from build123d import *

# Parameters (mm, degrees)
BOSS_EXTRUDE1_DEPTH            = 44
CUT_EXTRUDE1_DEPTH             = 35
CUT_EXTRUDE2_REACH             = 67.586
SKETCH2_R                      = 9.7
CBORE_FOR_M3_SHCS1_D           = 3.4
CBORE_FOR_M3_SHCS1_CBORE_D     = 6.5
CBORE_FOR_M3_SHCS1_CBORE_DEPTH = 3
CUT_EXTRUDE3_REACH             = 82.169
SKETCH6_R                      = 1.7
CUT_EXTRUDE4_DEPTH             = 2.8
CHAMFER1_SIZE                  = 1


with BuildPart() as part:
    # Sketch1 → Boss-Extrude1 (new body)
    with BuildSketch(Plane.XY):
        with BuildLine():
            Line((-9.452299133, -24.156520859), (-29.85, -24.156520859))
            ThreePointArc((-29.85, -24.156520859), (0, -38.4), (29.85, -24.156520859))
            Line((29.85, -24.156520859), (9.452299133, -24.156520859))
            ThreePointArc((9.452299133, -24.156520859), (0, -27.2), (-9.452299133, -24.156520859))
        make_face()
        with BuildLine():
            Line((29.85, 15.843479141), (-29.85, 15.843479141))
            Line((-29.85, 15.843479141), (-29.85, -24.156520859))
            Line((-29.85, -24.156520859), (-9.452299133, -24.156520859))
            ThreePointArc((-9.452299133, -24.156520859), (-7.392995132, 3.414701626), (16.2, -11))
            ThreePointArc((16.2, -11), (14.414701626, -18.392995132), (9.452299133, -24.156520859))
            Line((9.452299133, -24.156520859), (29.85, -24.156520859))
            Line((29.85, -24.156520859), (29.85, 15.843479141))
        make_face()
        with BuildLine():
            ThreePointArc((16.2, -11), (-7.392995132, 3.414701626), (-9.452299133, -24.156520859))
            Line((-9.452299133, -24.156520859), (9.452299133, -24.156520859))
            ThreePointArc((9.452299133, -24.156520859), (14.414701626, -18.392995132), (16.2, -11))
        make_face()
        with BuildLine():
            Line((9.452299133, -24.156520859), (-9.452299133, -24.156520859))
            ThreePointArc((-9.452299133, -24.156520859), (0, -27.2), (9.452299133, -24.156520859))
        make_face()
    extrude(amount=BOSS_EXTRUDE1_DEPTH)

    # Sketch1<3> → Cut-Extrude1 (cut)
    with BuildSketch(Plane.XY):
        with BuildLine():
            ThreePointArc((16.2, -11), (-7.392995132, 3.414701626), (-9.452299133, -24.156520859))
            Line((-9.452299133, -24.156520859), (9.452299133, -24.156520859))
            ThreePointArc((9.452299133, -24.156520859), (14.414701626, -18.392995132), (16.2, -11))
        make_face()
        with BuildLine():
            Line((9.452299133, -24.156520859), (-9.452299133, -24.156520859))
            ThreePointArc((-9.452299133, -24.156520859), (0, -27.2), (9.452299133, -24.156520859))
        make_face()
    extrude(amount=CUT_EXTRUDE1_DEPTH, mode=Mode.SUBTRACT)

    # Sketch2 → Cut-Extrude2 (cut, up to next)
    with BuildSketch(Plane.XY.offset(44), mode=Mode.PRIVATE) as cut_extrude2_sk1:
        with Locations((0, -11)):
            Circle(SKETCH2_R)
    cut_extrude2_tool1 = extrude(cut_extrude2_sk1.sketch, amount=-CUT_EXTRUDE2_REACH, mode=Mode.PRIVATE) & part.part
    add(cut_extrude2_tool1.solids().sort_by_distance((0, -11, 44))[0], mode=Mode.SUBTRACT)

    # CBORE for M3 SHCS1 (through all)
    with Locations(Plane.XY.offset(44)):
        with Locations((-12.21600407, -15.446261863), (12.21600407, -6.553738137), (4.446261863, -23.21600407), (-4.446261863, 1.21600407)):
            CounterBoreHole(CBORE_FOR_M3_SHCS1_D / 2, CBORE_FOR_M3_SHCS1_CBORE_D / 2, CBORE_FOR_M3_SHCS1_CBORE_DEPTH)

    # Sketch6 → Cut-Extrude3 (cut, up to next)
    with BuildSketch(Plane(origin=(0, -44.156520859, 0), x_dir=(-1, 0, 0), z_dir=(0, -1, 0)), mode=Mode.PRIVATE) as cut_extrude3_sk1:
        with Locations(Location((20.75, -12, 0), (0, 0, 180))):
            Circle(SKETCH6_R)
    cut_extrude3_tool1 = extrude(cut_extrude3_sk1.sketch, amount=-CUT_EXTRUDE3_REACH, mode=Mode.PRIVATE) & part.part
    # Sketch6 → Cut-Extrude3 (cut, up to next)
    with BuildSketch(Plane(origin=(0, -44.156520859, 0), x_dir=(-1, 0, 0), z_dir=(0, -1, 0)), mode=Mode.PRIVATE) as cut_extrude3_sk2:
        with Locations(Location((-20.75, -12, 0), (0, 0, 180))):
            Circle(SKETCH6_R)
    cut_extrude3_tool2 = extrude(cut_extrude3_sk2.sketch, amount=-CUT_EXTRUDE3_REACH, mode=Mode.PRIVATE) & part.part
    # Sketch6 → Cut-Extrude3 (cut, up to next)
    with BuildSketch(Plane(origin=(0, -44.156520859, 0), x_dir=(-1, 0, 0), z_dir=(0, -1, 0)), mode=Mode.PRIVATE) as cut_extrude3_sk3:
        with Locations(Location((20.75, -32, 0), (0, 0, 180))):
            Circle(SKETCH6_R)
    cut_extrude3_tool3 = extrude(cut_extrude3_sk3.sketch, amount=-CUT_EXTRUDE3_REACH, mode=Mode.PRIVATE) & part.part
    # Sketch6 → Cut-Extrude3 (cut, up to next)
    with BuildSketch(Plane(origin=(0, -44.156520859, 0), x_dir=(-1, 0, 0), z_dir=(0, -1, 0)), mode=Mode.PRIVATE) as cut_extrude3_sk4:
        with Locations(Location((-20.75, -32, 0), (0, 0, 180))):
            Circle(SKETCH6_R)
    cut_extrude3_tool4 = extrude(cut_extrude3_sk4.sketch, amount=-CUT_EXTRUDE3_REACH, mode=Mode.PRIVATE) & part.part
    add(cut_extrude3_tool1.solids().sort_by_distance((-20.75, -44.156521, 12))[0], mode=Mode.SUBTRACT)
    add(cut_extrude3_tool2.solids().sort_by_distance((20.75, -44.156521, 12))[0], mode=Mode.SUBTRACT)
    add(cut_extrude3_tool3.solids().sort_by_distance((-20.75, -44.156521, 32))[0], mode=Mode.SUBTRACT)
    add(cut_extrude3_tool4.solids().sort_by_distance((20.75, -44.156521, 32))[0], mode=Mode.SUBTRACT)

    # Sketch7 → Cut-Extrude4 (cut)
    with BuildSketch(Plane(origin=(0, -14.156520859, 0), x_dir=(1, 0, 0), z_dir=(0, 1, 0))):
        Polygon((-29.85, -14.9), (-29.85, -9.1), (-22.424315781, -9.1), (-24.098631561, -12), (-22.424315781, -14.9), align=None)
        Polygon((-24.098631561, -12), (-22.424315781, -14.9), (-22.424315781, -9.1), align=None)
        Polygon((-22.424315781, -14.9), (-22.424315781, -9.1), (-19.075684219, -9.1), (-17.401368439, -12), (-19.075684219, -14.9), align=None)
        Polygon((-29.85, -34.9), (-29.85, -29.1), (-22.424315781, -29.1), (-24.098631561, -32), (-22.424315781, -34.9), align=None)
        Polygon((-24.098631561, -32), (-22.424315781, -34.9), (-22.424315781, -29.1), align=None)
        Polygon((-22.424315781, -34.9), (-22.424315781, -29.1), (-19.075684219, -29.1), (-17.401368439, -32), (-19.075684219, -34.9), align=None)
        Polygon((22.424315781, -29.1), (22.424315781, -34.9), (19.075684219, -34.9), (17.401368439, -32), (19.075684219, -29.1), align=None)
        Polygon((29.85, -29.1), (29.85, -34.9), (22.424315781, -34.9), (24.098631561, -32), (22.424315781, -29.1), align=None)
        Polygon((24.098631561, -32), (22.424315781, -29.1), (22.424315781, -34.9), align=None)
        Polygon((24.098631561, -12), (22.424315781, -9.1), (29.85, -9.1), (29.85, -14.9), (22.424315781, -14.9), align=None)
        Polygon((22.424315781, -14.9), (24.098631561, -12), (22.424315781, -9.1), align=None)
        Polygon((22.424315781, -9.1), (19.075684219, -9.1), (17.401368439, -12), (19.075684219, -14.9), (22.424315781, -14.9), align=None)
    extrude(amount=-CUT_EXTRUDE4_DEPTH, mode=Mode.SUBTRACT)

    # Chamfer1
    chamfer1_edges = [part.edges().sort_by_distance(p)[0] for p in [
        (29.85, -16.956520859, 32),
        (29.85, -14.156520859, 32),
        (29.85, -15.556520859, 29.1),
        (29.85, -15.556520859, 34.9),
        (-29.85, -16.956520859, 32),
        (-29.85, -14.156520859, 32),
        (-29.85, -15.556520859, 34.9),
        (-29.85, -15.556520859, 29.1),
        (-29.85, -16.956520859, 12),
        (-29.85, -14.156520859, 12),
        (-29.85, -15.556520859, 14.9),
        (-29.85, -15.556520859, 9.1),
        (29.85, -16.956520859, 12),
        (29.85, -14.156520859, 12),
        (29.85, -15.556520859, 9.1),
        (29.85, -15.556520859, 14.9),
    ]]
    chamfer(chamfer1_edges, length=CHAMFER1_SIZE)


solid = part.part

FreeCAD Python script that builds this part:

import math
import FreeCAD as App
import Part
import Sketcher
Q = App.Units.Quantity


def edges_at(feature, points):
    """Names of the edges that pass closest to the given points."""
    edges = feature.Shape.Edges
    near = lambda p: min(range(len(edges)), key=lambda i: edges[i].distToShape(Part.Vertex(*p))[0])
    return sorted({f"Edge{near(p) + 1}" for p in points})


def add_polygon(sketch, points):
    """Adds a closed chain of lines whose ends are joined by coincident constraints."""
    first, n = sketch.GeometryCount, len(points)
    for a, b in zip(points, points[1:] + points[:1]):
        sketch.addGeometry(Part.LineSegment(App.Vector(*a, 0), App.Vector(*b, 0)), False)
    for i in range(n):
        sketch.addConstraint(Sketcher.Constraint("Coincident", first + i, 2, first + (i + 1) % n, 1))

doc = App.newDocument("Part")
body = doc.addObject("PartDesign::Body", "Body")

# Sketch on XY plane
sketch1 = body.newObject("Sketcher::SketchObject", "Sketch")
sketch1.AttachmentSupport = (doc.getObject("XY_Plane"), [""])
sketch1.MapMode = "FlatFace"
sketch1.addGeometry(Part.ArcOfCircle(Part.Circle(App.Vector(0, 0, 0), App.Vector(0, 0, 1), 38), math.radians(-141), math.radians(-39)), False)
sketch1.addGeometry(Part.LineSegment(App.Vector(30, -24, 0), App.Vector(30, 16, 0)), False)
sketch1.addGeometry(Part.LineSegment(App.Vector(30, 16, 0), App.Vector(-30, 16, 0)), False)
sketch1.addGeometry(Part.LineSegment(App.Vector(-30, 16, 0), App.Vector(-30, -24, 0)), False)
sketch1.addConstraint(Sketcher.Constraint("Coincident", 0, 2, 1, 1))
sketch1.addConstraint(Sketcher.Constraint("Coincident", 1, 2, 2, 1))
sketch1.addConstraint(Sketcher.Constraint("Coincident", 2, 2, 3, 1))
sketch1.addConstraint(Sketcher.Constraint("Coincident", 3, 2, 0, 1))
sketch1.addConstraint(Sketcher.Constraint("Vertical", 1))
sketch1.addConstraint(Sketcher.Constraint("Horizontal", 2))
sketch1.addConstraint(Sketcher.Constraint("Vertical", 3))
sketch1.addConstraint(Sketcher.Constraint("Coincident", 0, 3, -1, 1))
sketch1.addConstraint(Sketcher.Constraint("Horizontal", 0, 2, 3, 2))
sketch1.addConstraint(Sketcher.Constraint("Radius", 0, Q("38.4 mm")))
sketch1.addConstraint(Sketcher.Constraint("DistanceY", 1, 1, 1, 2, Q("40 mm")))
sketch1.addConstraint(Sketcher.Constraint("DistanceX", 2, 2, 2, 1, Q("59.7 mm")))
pad1 = body.newObject("PartDesign::Pad", "Pad")
pad1.Profile = sketch1
pad1.Length = 44

# Sketch on XY plane
sketch2 = body.newObject("Sketcher::SketchObject", "Sketch001")
sketch2.AttachmentSupport = (doc.getObject("XY_Plane"), [""])
sketch2.MapMode = "FlatFace"
sketch2.addGeometry(Part.ArcOfCircle(Part.Circle(App.Vector(0, -11, 0), App.Vector(0, 0, 1), 16), math.radians(0), math.radians(234)), False)
sketch2.addGeometry(Part.ArcOfCircle(Part.Circle(App.Vector(0, -11, 0), App.Vector(0, 0, 1), 16), math.radians(-126), math.radians(-54)), False)
sketch2.addGeometry(Part.ArcOfCircle(Part.Circle(App.Vector(0, -11, 0), App.Vector(0, 0, 1), 16), math.radians(-54), math.radians(0)), False)
sketch2.addConstraint(Sketcher.Constraint("Tangent", 0, 2, 1, 1))
sketch2.addConstraint(Sketcher.Constraint("Tangent", 1, 2, 2, 1))
sketch2.addConstraint(Sketcher.Constraint("Tangent", 2, 2, 0, 1))
sketch2.addConstraint(Sketcher.Constraint("Symmetric", 0, 2, 1, 2, -2))
sketch2.addConstraint(Sketcher.Constraint("Horizontal", 1, 3, 2, 2))
sketch2.addConstraint(Sketcher.Constraint("Radius", 0, Q("16.2 mm")))
sketch2.addConstraint(Sketcher.Constraint("DistanceY", 0, 3, -1, 1, Q("11 mm")))
sketch2.addConstraint(Sketcher.Constraint("DistanceX", 0, 2, -1, 1, Q("9.452299 mm")))
pocket1 = body.newObject("PartDesign::Pocket", "Pocket")
pocket1.Profile = sketch2
pocket1.Length = 35
pocket1.Reversed = True

# Sketch on XY plane
sketch3 = body.newObject("Sketcher::SketchObject", "Sketch002")
sketch3.AttachmentSupport = (doc.getObject("XY_Plane"), [""])
sketch3.MapMode = "FlatFace"
sketch3.AttachmentOffset = App.Placement(App.Vector(0, 0, 44), App.Rotation())
sketch3.addGeometry(Part.Circle(App.Vector(0, -11, 0), App.Vector(0, 0, 1), 10), False)
sketch3.addConstraint(Sketcher.Constraint("PointOnObject", 0, 3, -2))
sketch3.addConstraint(Sketcher.Constraint("Diameter", 0, Q("19.4 mm")))
sketch3.addConstraint(Sketcher.Constraint("DistanceY", 0, 3, -1, 1, Q("11 mm")))
pocket2 = body.newObject("PartDesign::Pocket", "Pocket001")
pocket2.Profile = sketch3
pocket2.Type = "UpToFirst"

# Sketch on XY plane
sketch4 = body.newObject("Sketcher::SketchObject", "Sketch003")
sketch4.AttachmentSupport = (doc.getObject("XY_Plane"), [""])
sketch4.MapMode = "FlatFace"
sketch4.AttachmentOffset = App.Placement(App.Vector(0, 0, 44), App.Rotation())
sketch4.addGeometry(Part.Circle(App.Vector(-12.2, -15.4, 0), App.Vector(0, 0, 1), 1.7), False)
sketch4.addGeometry(Part.Circle(App.Vector(12.2, -6.6, 0), App.Vector(0, 0, 1), 1.7), False)
sketch4.addGeometry(Part.Circle(App.Vector(4.4, -23.2, 0), App.Vector(0, 0, 1), 1.7), False)
sketch4.addGeometry(Part.Circle(App.Vector(-4.4, 1.2, 0), App.Vector(0, 0, 1), 1.7), False)
sketch4.addConstraint(Sketcher.Constraint("Equal", 0, 1))
sketch4.addConstraint(Sketcher.Constraint("Equal", 1, 2))
sketch4.addConstraint(Sketcher.Constraint("Equal", 2, 3))
sketch4.addConstraint(Sketcher.Constraint("Diameter", 0, Q("3.4 mm")))
sketch4.addConstraint(Sketcher.Constraint("DistanceY", 0, 3, -1, 1, Q("15.446262 mm")))
sketch4.addConstraint(Sketcher.Constraint("DistanceY", 1, 3, -1, 1, Q("6.553738 mm")))
sketch4.addConstraint(Sketcher.Constraint("DistanceX", -1, 1, 2, 3, Q("4.446262 mm")))
sketch4.addConstraint(Sketcher.Constraint("DistanceX", 3, 3, -1, 1, Q("4.446262 mm")))
sketch4.addConstraint(Sketcher.Constraint("DistanceX", 0, 3, 1, 3, Q("24.432008 mm")))
sketch4.addConstraint(Sketcher.Constraint("DistanceY", 2, 3, 3, 3, Q("24.432008 mm")))
sketch4.addConstraint(Sketcher.Constraint("DistanceX", 0, 3, -1, 1, Q("12.216004 mm")))
sketch4.addConstraint(Sketcher.Constraint("DistanceY", 2, 3, -1, 1, Q("23.216004 mm")))
doc.recompute()
hole = body.newObject("PartDesign::Hole", "Hole")
hole.Profile = sketch4
hole.ThreadType = "None"
hole.Diameter = 3.4
hole.DepthType = "ThroughAll"
hole.HoleCutType = "Counterbore"
hole.HoleCutDiameter = 6.5
hole.HoleCutDepth = 3

# Sketch on XZ plane
sketch5 = body.newObject("Sketcher::SketchObject", "Sketch004")
sketch5.AttachmentSupport = (doc.getObject("XZ_Plane"), [""])
sketch5.MapMode = "FlatFace"
sketch5.AttachmentOffset = App.Placement(App.Vector(0, 0, 44.156521), App.Rotation())
sketch5.addGeometry(Part.Circle(App.Vector(-20.8, 12, 0), App.Vector(0, 0, 1), 1.7), False)
sketch5.addConstraint(Sketcher.Constraint("Diameter", 0, Q("3.4 mm")))
sketch5.addConstraint(Sketcher.Constraint("DistanceY", -1, 1, 0, 3, Q("12 mm")))
sketch5.addConstraint(Sketcher.Constraint("DistanceX", 0, 3, -1, 1, Q("20.75 mm")))
pocket3 = body.newObject("PartDesign::Pocket", "Pocket002")
pocket3.Profile = sketch5
pocket3.Length = 60

# Sketch on XZ plane
sketch6 = body.newObject("Sketcher::SketchObject", "Sketch005")
sketch6.AttachmentSupport = (doc.getObject("XZ_Plane"), [""])
sketch6.MapMode = "FlatFace"
sketch6.AttachmentOffset = App.Placement(App.Vector(0, 0, 44.156521), App.Rotation())
sketch6.addGeometry(Part.Circle(App.Vector(20.8, 12, 0), App.Vector(0, 0, 1), 1.7), False)
sketch6.addConstraint(Sketcher.Constraint("Diameter", 0, Q("3.4 mm")))
sketch6.addConstraint(Sketcher.Constraint("DistanceY", -1, 1, 0, 3, Q("12 mm")))
sketch6.addConstraint(Sketcher.Constraint("DistanceX", -1, 1, 0, 3, Q("20.75 mm")))
pocket4 = body.newObject("PartDesign::Pocket", "Pocket003")
pocket4.Profile = sketch6
pocket4.Length = 60

# Sketch on XZ plane
sketch7 = body.newObject("Sketcher::SketchObject", "Sketch006")
sketch7.AttachmentSupport = (doc.getObject("XZ_Plane"), [""])
sketch7.MapMode = "FlatFace"
sketch7.AttachmentOffset = App.Placement(App.Vector(0, 0, 44.156521), App.Rotation())
sketch7.addGeometry(Part.Circle(App.Vector(-20.8, 32, 0), App.Vector(0, 0, 1), 1.7), False)
sketch7.addConstraint(Sketcher.Constraint("Diameter", 0, Q("3.4 mm")))
sketch7.addConstraint(Sketcher.Constraint("DistanceY", -1, 1, 0, 3, Q("32 mm")))
sketch7.addConstraint(Sketcher.Constraint("DistanceX", 0, 3, -1, 1, Q("20.75 mm")))
pocket5 = body.newObject("PartDesign::Pocket", "Pocket004")
pocket5.Profile = sketch7
pocket5.Length = 60

# Sketch on XZ plane
sketch8 = body.newObject("Sketcher::SketchObject", "Sketch007")
sketch8.AttachmentSupport = (doc.getObject("XZ_Plane"), [""])
sketch8.MapMode = "FlatFace"
sketch8.AttachmentOffset = App.Placement(App.Vector(0, 0, 44.156521), App.Rotation())
sketch8.addGeometry(Part.Circle(App.Vector(20.8, 32, 0), App.Vector(0, 0, 1), 1.7), False)
sketch8.addConstraint(Sketcher.Constraint("Diameter", 0, Q("3.4 mm")))
sketch8.addConstraint(Sketcher.Constraint("DistanceY", -1, 1, 0, 3, Q("32 mm")))
sketch8.addConstraint(Sketcher.Constraint("DistanceX", -1, 1, 0, 3, Q("20.75 mm")))
pocket6 = body.newObject("PartDesign::Pocket", "Pocket005")
pocket6.Profile = sketch8
pocket6.Length = 60

# Sketch on XZ plane
sketch9 = body.newObject("Sketcher::SketchObject", "Sketch008")
sketch9.AttachmentSupport = (doc.getObject("XZ_Plane"), [""])
sketch9.MapMode = "FlatFace"
sketch9.AttachmentOffset = App.Placement(App.Vector(0, 0, 14.156521), App.Rotation())
add_polygon(sketch9, [(-29.9, 9.1), (-29.9, 14.9), (-19.1, 14.9), (-17.4, 12), (-19.1, 9.1)])  # lines 0-4
add_polygon(sketch9, [(-29.9, 29.1), (-29.9, 34.9), (-19.1, 34.9), (-17.4, 32), (-19.1, 29.1)])  # lines 5-9
add_polygon(sketch9, [(19.1, 34.9), (29.9, 34.9), (29.9, 29.1), (19.1, 29.1), (17.4, 32)])  # lines 10-14
add_polygon(sketch9, [(29.9, 9.1), (19.1, 9.1), (17.4, 12), (19.1, 14.9), (29.9, 14.9)])  # lines 15-19
sketch9.addConstraint(Sketcher.Constraint("Vertical", 0))
sketch9.addConstraint(Sketcher.Constraint("Horizontal", 1))
sketch9.addConstraint(Sketcher.Constraint("Horizontal", 4))
sketch9.addConstraint(Sketcher.Constraint("Vertical", 5))
sketch9.addConstraint(Sketcher.Constraint("Horizontal", 6))
sketch9.addConstraint(Sketcher.Constraint("Horizontal", 9))
sketch9.addConstraint(Sketcher.Constraint("Horizontal", 10))
sketch9.addConstraint(Sketcher.Constraint("Vertical", 11))
sketch9.addConstraint(Sketcher.Constraint("Horizontal", 12))
sketch9.addConstraint(Sketcher.Constraint("Horizontal", 15))
sketch9.addConstraint(Sketcher.Constraint("Horizontal", 18))
sketch9.addConstraint(Sketcher.Constraint("Vertical", 19))
sketch9.addConstraint(Sketcher.Constraint("Symmetric", 5, 2, 10, 2, -2))
sketch9.addConstraint(Sketcher.Constraint("Symmetric", 8, 2, 12, 2, -2))
sketch9.addConstraint(Sketcher.Constraint("Symmetric", 7, 2, 13, 2, -2))
sketch9.addConstraint(Sketcher.Constraint("Symmetric", 3, 2, 15, 2, -2))
sketch9.addConstraint(Sketcher.Constraint("Symmetric", 2, 2, 16, 2, -2))
sketch9.addConstraint(Sketcher.Constraint("Symmetric", 1, 2, 17, 2, -2))
sketch9.addConstraint(Sketcher.Constraint("Parallel", 2, 7))
sketch9.addConstraint(Sketcher.Constraint("Parallel", 3, 8))
sketch9.addConstraint(Sketcher.Constraint("Parallel", 7, 13))
sketch9.addConstraint(Sketcher.Constraint("Parallel", 8, 14))
sketch9.addConstraint(Sketcher.Constraint("Vertical", 1, 2, 3, 2))
sketch9.addConstraint(Sketcher.Constraint("Vertical", 4, 2, 5, 2))
sketch9.addConstraint(Sketcher.Constraint("Vertical", 3, 2, 6, 2))
sketch9.addConstraint(Sketcher.Constraint("Vertical", 2, 2, 7, 2))
sketch9.addConstraint(Sketcher.Constraint("Vertical", 6, 2, 8, 2))
sketch9.addConstraint(Sketcher.Constraint("Vertical", 11, 2, 18, 2))
sketch9.addConstraint(Sketcher.Constraint("Angle", 2, Q("-60 deg")))
sketch9.addConstraint(Sketcher.Constraint("DistanceY", 0, 1, 0, 2, Q("5.8 mm")))
sketch9.addConstraint(Sketcher.Constraint("DistanceY", -1, 1, 2, 2, Q("12 mm")))
sketch9.addConstraint(Sketcher.Constraint("DistanceY", -1, 1, 7, 2, Q("32 mm")))
sketch9.addConstraint(Sketcher.Constraint("DistanceX", 0, 2, -1, 1, Q("29.85 mm")))
sketch9.addConstraint(Sketcher.Constraint("DistanceX", 1, 1, 1, 2, Q("10.774316 mm")))
pocket7 = body.newObject("PartDesign::Pocket", "Pocket006")
pocket7.Profile = sketch9
pocket7.Length = 2.8
pocket7.Reversed = True
doc.recompute()

chamfer = body.newObject("PartDesign::Chamfer", "Chamfer")
chamfer.Base = (pocket7, edges_at(pocket7, [
    (29.85, -16.957, 32),
    (29.85, -14.157, 32),
    (29.85, -15.557, 29.1),
    (29.85, -15.557, 34.9),
    (-29.85, -16.957, 32),
    (-29.85, -14.157, 32),
    (-29.85, -15.557, 34.9),
    (-29.85, -15.557, 29.1),
    (-29.85, -16.957, 12),
    (-29.85, -14.157, 12),
    (-29.85, -15.557, 14.9),
    (-29.85, -15.557, 9.1),
    (29.85, -16.957, 12),
    (29.85, -14.157, 12),
    (29.85, -15.557, 9.1),
    (29.85, -15.557, 14.9),
]))
chamfer.Size = 1

doc.recompute()
